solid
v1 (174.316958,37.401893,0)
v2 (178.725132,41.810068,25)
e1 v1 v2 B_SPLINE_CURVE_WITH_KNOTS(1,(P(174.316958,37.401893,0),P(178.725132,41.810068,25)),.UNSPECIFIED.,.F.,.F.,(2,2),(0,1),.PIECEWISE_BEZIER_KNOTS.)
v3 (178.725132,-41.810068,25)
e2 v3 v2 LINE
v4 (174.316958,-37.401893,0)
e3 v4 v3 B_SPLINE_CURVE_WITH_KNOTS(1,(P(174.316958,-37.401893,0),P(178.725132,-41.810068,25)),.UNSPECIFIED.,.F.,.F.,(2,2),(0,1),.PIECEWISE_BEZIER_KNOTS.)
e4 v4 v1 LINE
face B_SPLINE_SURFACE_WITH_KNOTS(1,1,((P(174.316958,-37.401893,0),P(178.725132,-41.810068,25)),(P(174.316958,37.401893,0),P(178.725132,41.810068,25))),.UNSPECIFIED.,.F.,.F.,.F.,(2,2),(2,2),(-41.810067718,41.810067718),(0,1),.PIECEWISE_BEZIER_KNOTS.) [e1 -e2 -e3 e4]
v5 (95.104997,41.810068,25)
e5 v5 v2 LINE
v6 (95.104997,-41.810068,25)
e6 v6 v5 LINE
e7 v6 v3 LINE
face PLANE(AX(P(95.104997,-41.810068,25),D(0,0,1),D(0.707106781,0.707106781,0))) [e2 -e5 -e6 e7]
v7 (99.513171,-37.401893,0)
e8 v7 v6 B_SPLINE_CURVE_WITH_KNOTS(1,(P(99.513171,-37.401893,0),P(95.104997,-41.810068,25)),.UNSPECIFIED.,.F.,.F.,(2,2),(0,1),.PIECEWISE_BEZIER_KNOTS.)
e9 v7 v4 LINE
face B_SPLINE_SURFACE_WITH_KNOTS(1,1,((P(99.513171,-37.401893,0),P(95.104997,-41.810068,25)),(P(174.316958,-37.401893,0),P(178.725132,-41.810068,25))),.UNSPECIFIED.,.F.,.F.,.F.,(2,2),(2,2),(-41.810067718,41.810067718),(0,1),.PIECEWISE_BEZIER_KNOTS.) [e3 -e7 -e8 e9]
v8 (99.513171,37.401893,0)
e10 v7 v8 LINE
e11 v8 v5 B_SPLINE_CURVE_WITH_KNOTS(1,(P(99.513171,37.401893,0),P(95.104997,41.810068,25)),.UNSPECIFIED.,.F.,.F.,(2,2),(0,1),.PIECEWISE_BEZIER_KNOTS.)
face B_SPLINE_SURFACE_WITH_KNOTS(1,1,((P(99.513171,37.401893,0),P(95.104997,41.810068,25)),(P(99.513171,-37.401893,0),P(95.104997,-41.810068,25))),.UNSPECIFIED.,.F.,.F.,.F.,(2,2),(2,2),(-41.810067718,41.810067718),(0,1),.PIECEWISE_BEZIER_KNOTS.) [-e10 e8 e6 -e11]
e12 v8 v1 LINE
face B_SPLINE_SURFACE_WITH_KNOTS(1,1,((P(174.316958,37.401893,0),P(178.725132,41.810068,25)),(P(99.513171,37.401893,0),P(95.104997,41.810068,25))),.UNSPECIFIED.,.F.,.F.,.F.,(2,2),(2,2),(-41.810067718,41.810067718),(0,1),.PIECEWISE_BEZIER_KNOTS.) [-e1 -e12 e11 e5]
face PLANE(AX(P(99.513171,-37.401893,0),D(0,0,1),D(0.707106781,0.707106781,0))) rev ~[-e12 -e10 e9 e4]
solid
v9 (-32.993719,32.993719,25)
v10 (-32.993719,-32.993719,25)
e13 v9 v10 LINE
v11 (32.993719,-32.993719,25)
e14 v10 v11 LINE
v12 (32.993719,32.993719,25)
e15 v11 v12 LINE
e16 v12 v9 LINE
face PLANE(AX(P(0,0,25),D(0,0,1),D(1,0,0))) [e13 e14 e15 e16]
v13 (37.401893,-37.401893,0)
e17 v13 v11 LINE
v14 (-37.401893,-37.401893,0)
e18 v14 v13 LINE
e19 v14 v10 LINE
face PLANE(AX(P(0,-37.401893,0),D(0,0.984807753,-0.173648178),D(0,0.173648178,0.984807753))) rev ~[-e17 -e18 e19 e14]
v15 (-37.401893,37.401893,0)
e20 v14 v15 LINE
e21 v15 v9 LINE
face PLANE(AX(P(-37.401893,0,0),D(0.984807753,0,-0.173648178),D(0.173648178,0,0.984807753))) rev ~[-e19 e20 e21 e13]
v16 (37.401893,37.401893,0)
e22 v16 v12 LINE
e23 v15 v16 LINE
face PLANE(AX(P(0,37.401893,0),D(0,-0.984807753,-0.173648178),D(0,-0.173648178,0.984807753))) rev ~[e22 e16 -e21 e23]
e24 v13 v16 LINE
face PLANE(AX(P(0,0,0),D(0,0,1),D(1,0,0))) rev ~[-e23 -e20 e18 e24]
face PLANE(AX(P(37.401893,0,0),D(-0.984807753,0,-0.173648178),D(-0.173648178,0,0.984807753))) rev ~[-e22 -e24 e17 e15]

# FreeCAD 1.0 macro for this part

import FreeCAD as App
import Part
import Sketcher
from FreeCAD import Vector
Q = App.Units.Quantity

doc = App.newDocument("Part")
body = doc.addObject("PartDesign::Body", "Body")

sketch1 = body.newObject("Sketcher::SketchObject", "Sketch")
sketch1.AttachmentSupport = (doc.getObject("XY_Plane"), [""])
sketch1.MapMode = "FlatFace"
sketch1.addGeometry([
    Part.LineSegment(Vector(-37.401893, 37.401893, 0), Vector(-37.401893, -37.401893, 0)),
    Part.LineSegment(Vector(-37.401893, -37.401893, 0), Vector(37.401893, -37.401893, 0)),
    Part.LineSegment(Vector(37.401893, -37.401893, 0), Vector(37.401893, 37.401893, 0)),
    Part.LineSegment(Vector(37.401893, 37.401893, 0), Vector(-37.401893, 37.401893, 0)),
], False)
sketch1.addConstraint([
    Sketcher.Constraint("Coincident", 0, 2, 1, 1),
    Sketcher.Constraint("Coincident", 1, 2, 2, 1),
    Sketcher.Constraint("Coincident", 2, 2, 3, 1),
    Sketcher.Constraint("Coincident", 3, 2, 0, 1),
    Sketcher.Constraint("Vertical", 0),
    Sketcher.Constraint("Horizontal", 1),
    Sketcher.Constraint("Vertical", 2),
    Sketcher.Constraint("Horizontal", 3),
    Sketcher.Constraint("Symmetric", 0, 2, 2, 2, -1, 1),
    Sketcher.Constraint("Equal", 3, 0),
    Sketcher.Constraint("DistanceX", 1, 1, 1, 2, Q("74.803786 mm")),
])
pad1 = body.newObject("PartDesign::Pad", "Pad")
pad1.Profile = sketch1
pad1.Length = 25
pad1.TaperAngle = -10
body2 = doc.addObject("PartDesign::Body", "Body001")

sketch2 = body2.newObject("Sketcher::SketchObject", "Sketch001")
sketch2.AttachmentSupport = (doc.getObject("XY_Plane001"), [""])
sketch2.MapMode = "FlatFace"
sketch2.addGeometry([
    Part.LineSegment(Vector(99.513171, 37.401893, 0), Vector(99.513171, -37.401893, 0)),
    Part.LineSegment(Vector(99.513171, -37.401893, 0), Vector(174.316958, -37.401893, 0)),
    Part.LineSegment(Vector(174.316958, -37.401893, 0), Vector(174.316958, 37.401893, 0)),
    Part.LineSegment(Vector(174.316958, 37.401893, 0), Vector(99.513171, 37.401893, 0)),
], False)
sketch2.addConstraint([
    Sketcher.Constraint("Coincident", 0, 2, 1, 1),
    Sketcher.Constraint("Coincident", 1, 2, 2, 1),
    Sketcher.Constraint("Coincident", 2, 2, 3, 1),
    Sketcher.Constraint("Coincident", 3, 2, 0, 1),
    Sketcher.Constraint("Vertical", 0),
    Sketcher.Constraint("Horizontal", 1),
    Sketcher.Constraint("Vertical", 2),
    Sketcher.Constraint("Horizontal", 3),
    Sketcher.Constraint("Equal", 3, 0),
    Sketcher.Constraint("DistanceX", 1, 1, 1, 2, Q("74.803786 mm")),
    Sketcher.Constraint("DistanceX", -1, 1, 0, 2, Q("99.513171 mm")),
    Sketcher.Constraint("DistanceY", 0, 2, -1, 1, Q("37.401893 mm")),
])
pad2 = body2.newObject("PartDesign::Pad", "Pad001")
pad2.Profile = sketch2
pad2.Length = 25
pad2.TaperAngle = 10

doc.recompute()
